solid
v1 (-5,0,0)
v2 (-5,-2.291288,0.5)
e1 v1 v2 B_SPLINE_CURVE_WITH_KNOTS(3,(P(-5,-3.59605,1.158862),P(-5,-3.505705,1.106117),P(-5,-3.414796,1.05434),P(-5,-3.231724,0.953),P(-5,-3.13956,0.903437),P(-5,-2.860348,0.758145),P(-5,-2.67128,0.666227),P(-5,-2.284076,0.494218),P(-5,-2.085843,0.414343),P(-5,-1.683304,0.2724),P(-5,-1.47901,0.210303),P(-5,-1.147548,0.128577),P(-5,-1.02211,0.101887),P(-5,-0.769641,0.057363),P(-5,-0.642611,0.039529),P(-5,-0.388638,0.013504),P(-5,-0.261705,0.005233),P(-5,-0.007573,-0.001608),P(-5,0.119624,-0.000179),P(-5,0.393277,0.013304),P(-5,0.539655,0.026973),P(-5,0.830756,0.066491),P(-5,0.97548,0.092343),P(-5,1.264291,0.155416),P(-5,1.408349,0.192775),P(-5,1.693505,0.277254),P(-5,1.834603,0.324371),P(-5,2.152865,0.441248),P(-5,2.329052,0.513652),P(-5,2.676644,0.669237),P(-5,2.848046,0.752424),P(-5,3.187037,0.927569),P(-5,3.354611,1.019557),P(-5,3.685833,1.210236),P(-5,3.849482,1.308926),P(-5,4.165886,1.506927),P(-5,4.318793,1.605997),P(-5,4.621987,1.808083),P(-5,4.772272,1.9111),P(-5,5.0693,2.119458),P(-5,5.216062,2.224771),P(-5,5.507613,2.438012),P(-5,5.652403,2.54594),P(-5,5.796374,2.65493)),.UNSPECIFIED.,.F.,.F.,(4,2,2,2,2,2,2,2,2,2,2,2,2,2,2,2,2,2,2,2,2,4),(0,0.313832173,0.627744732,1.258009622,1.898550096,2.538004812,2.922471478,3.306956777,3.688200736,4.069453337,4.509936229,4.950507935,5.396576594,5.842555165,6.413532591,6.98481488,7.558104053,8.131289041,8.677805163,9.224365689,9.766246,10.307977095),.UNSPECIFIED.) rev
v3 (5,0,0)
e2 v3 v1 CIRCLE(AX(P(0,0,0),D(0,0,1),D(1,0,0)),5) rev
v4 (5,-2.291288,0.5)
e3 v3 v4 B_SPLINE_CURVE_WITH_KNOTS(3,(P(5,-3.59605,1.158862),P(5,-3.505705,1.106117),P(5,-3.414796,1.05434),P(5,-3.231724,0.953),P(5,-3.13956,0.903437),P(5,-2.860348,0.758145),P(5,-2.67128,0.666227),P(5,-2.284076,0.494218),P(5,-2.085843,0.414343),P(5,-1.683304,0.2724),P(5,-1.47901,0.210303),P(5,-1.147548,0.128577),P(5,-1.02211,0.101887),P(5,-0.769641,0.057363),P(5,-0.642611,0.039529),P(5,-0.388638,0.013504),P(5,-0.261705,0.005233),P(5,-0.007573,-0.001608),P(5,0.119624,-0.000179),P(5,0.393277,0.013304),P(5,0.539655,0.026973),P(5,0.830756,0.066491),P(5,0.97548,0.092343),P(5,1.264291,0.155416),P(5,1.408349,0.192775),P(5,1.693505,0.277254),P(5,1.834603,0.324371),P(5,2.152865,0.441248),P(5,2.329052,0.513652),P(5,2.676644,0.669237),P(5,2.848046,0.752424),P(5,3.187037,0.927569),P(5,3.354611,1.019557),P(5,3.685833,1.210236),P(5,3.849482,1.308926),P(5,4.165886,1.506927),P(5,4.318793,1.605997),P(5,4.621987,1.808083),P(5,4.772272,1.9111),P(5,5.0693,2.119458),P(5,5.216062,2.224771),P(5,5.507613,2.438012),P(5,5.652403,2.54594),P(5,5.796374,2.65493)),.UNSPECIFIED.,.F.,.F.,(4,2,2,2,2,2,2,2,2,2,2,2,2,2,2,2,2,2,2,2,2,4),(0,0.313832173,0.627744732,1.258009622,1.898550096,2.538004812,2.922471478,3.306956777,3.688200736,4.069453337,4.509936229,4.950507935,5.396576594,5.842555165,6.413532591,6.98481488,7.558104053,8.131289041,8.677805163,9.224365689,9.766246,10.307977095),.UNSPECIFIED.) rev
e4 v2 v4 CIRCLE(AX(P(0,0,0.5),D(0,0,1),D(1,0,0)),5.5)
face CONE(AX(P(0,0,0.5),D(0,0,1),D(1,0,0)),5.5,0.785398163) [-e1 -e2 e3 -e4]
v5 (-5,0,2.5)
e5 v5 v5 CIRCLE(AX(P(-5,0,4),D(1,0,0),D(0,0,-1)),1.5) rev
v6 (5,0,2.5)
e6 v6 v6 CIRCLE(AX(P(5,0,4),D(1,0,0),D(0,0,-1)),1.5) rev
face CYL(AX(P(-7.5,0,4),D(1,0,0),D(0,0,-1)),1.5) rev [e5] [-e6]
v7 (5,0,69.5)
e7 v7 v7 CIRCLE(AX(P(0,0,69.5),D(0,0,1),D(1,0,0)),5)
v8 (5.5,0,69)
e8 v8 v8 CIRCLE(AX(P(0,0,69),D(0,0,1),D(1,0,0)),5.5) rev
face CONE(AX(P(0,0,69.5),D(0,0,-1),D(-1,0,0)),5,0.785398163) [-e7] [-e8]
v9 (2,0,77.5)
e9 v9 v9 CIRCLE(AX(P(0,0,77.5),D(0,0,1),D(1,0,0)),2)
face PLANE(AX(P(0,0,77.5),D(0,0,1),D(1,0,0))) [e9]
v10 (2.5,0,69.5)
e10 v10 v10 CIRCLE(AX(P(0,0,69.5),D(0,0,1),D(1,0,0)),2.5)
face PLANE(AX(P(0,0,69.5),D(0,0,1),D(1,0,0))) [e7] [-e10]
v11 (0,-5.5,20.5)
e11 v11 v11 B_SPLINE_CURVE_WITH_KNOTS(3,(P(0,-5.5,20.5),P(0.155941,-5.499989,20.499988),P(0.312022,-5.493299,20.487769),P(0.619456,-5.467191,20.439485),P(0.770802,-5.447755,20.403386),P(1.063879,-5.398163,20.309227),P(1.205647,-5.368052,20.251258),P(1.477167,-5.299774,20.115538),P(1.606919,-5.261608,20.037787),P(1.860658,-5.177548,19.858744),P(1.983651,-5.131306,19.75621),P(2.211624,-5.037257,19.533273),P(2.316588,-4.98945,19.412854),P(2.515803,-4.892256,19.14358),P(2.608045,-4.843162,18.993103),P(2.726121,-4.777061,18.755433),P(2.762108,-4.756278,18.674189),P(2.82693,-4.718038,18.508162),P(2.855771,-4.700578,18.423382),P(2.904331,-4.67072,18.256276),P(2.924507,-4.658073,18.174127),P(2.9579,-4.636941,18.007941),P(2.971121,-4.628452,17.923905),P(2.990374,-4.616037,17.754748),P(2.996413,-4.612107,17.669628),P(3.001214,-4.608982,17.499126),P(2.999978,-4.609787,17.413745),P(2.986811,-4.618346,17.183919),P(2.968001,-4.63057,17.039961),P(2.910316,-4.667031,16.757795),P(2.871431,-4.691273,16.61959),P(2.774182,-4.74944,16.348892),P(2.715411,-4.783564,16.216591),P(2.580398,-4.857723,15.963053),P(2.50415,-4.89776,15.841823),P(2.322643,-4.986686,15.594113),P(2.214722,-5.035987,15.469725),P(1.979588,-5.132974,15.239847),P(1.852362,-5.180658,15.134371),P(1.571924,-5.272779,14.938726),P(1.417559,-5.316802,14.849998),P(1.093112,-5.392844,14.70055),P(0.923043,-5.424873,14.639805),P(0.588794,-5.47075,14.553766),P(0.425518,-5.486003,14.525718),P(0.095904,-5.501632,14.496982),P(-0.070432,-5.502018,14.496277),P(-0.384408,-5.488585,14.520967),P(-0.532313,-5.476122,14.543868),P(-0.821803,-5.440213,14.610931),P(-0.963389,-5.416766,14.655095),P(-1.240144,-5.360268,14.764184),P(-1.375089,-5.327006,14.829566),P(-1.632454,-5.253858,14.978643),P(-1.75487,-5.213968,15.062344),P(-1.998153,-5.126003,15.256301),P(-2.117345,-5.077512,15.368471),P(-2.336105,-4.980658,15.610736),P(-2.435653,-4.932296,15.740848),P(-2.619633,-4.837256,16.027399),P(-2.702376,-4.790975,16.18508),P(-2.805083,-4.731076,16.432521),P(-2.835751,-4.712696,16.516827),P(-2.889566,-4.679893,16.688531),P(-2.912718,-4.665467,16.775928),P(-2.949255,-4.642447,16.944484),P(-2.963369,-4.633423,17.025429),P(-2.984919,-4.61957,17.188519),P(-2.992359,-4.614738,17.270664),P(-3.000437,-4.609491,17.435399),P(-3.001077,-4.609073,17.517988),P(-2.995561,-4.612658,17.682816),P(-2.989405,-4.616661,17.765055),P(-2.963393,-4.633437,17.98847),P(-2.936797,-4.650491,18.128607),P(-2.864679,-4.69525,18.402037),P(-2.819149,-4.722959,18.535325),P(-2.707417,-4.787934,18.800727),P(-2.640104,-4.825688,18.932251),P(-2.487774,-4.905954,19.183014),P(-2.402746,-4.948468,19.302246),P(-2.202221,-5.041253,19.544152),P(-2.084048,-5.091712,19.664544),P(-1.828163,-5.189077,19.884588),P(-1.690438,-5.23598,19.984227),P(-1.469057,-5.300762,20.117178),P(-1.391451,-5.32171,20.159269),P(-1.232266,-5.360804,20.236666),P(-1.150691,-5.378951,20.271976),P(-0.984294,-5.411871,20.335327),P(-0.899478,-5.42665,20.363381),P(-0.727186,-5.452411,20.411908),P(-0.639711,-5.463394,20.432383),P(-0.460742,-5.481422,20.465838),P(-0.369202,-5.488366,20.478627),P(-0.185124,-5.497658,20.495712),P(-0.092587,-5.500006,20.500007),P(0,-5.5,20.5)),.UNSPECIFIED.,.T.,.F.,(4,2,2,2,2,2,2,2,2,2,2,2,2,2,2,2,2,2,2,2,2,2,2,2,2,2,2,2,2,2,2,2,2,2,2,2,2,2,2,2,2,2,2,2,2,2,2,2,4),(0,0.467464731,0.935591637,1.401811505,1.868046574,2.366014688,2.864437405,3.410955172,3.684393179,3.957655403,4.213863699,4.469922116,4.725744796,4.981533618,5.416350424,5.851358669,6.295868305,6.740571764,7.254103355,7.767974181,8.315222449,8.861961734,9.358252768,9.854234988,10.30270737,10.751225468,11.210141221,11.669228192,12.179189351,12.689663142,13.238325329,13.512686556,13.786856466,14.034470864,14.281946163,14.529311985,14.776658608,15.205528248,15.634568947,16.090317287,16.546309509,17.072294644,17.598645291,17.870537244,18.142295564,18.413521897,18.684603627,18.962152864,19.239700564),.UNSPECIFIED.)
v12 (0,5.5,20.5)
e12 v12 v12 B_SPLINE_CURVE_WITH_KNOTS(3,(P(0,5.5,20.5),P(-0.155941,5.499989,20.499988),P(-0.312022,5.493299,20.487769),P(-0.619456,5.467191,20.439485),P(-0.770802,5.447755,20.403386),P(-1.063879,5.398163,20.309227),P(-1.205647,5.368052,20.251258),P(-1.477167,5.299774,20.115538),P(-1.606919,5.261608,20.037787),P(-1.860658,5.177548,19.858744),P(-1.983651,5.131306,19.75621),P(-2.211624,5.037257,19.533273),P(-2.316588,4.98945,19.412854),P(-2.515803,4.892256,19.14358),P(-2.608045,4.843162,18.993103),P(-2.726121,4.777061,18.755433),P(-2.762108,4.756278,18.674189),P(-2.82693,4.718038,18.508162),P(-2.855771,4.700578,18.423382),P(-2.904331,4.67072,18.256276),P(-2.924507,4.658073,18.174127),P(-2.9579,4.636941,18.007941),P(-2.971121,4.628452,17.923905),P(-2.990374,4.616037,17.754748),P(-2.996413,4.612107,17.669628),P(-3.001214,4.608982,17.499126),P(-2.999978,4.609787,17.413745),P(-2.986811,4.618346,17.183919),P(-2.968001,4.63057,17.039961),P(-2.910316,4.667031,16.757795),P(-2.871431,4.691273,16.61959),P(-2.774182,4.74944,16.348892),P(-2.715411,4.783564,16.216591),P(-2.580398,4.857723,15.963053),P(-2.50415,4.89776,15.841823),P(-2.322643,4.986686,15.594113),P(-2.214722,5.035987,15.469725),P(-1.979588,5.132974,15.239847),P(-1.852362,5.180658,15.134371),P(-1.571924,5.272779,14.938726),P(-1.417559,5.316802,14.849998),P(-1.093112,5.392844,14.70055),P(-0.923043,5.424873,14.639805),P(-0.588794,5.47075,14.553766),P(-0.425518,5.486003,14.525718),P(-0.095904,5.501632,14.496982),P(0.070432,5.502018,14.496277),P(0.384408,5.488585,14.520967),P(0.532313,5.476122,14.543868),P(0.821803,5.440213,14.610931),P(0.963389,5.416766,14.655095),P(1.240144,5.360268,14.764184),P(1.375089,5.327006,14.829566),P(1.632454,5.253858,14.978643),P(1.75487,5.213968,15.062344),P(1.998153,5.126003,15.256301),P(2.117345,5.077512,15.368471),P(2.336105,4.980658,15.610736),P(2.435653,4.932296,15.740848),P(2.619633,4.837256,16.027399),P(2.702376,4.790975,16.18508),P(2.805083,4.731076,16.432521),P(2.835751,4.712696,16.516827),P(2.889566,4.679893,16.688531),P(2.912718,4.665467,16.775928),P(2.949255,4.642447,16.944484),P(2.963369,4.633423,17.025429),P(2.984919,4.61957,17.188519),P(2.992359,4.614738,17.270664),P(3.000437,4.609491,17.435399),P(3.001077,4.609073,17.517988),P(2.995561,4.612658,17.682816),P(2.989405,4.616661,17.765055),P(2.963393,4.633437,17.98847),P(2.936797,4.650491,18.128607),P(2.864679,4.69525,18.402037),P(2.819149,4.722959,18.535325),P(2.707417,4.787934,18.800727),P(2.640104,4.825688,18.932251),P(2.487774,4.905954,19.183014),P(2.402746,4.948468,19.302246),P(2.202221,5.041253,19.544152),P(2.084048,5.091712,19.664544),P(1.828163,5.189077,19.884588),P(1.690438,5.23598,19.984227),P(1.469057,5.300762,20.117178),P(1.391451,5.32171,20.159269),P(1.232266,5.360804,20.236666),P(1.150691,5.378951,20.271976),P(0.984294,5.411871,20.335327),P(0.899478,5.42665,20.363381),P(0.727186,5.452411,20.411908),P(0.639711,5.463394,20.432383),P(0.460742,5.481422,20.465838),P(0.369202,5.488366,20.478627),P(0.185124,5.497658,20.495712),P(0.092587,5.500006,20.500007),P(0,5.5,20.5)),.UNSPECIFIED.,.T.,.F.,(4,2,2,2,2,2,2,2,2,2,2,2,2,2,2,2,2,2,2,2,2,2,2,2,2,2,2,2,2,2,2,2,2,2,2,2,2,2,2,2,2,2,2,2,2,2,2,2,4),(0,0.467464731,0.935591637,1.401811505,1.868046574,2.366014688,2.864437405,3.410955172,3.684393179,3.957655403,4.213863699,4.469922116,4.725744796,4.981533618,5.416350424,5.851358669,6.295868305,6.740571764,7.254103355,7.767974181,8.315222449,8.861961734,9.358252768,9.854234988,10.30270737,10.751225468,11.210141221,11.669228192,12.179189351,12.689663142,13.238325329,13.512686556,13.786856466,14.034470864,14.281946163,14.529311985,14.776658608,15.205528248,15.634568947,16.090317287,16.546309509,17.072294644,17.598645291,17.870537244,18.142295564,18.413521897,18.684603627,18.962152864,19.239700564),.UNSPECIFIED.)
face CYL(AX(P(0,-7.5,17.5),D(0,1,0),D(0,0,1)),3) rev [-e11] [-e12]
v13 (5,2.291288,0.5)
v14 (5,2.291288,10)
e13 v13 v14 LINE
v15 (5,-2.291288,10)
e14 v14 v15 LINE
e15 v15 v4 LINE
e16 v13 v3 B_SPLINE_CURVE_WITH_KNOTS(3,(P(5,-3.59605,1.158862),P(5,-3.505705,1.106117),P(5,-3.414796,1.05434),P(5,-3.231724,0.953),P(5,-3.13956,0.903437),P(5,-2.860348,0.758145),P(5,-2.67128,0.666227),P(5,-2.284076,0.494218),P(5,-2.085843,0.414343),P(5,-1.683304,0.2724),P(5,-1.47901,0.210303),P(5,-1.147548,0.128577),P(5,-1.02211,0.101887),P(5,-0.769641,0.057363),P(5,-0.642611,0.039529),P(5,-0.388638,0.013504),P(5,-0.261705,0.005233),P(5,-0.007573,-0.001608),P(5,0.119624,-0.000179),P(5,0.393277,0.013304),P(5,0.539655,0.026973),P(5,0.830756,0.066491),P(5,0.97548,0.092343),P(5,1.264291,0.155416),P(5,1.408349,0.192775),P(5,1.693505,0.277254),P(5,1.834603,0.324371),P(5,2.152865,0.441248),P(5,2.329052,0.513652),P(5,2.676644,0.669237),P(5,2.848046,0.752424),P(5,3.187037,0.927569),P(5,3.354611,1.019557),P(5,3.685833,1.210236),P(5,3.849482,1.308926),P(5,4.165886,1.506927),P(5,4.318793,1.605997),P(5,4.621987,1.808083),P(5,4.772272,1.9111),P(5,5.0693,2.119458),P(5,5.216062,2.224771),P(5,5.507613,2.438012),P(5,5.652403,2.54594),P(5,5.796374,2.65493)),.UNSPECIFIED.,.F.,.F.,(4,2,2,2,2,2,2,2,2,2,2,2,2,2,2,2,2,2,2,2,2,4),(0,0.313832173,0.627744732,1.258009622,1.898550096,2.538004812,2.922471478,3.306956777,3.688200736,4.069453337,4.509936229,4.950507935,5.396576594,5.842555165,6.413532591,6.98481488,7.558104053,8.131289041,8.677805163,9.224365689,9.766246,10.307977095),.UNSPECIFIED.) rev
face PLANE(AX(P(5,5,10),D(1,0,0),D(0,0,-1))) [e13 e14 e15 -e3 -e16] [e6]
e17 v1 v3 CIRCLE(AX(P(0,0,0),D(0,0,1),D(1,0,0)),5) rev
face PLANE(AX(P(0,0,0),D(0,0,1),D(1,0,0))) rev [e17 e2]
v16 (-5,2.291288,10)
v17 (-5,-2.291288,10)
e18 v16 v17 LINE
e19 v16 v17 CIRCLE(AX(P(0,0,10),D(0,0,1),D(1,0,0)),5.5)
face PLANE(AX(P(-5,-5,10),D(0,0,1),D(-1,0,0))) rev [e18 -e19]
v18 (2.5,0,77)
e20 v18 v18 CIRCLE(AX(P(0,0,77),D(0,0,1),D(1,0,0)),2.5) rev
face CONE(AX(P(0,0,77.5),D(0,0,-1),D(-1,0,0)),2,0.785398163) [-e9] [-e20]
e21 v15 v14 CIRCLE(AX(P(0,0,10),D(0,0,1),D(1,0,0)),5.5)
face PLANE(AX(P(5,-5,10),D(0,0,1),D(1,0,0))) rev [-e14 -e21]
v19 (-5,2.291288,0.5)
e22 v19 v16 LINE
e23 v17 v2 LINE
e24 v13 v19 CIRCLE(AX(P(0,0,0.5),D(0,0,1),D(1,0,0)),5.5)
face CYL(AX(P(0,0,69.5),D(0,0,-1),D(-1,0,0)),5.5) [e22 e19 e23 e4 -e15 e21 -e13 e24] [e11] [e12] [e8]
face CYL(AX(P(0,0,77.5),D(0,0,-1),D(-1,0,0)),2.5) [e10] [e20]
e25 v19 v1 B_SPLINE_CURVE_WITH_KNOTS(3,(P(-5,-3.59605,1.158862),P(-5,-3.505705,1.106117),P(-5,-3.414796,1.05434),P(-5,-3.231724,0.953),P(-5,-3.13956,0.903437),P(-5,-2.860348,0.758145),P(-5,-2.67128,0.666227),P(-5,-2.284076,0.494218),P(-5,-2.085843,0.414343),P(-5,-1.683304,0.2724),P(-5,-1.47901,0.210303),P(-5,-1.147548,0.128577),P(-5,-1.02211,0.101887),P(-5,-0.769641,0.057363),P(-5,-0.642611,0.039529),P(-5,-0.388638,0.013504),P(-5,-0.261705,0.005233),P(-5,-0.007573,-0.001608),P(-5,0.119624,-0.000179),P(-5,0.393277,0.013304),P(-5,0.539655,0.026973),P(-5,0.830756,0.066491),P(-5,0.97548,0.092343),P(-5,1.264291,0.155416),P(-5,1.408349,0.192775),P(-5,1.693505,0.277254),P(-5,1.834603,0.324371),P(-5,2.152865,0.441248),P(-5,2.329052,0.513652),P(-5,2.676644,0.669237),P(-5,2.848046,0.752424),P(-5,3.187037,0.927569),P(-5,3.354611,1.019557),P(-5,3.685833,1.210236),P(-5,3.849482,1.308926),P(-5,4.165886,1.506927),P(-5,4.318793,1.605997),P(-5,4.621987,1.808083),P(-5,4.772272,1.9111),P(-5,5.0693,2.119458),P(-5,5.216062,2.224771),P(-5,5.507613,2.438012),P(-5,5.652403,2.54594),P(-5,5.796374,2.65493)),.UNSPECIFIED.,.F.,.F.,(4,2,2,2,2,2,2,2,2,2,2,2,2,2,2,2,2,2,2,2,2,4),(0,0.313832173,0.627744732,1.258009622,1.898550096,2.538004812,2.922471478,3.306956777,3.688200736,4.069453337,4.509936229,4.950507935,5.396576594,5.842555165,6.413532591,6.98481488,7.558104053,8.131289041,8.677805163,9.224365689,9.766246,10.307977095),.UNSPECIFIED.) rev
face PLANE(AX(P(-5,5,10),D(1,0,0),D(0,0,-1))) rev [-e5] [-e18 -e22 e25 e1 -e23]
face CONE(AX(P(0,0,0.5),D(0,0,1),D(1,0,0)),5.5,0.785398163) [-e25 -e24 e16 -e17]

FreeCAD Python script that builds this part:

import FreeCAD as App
import Part
import Sketcher

V = App.Vector


def edges_at(feature, points):
    """Names of the edges that pass closest to the given points."""
    edges = feature.Shape.Edges
    near = lambda p: min(range(len(edges)), key=lambda i: edges[i].distToShape(Part.Vertex(*p))[0])
    return sorted({f"Edge{near(p) + 1}" for p in points})


def add_polygon(sketch, points):
    """Adds a closed chain of lines whose ends are joined by coincident constraints."""
    first, n = sketch.GeometryCount, len(points)
    for a, b in zip(points, points[1:] + points[:1]):
        sketch.addGeometry(Part.LineSegment(App.Vector(*a, 0), App.Vector(*b, 0)), False)
    for i in range(n):
        sketch.addConstraint(Sketcher.Constraint("Coincident", first + i, 2, first + (i + 1) % n, 1))

doc = App.newDocument("Part")
params = doc.addObject("Spreadsheet::Sheet", "Params")
for row, (alias, value) in enumerate([
    ("sketch1_diameter", "11 mm"),
    ("pad1_length", "69.5 mm"),
    ("chamfer_size", "0.5 mm"),
    ("sketch2_diameter", "5 mm"),
    ("pad2_length", "8 mm"),
    ("chamfer2_size", "0.5 mm"),
    ("sketch3_diameter", "3 mm"),
    ("pocket1_length", "15 mm"),
    ("sketch4_diameter", "6 mm"),
    ("pocket2_length", "15 mm"),
    ("sketch5_width", "2 mm"),
    ("sketch5_height", "10 mm"),
    ("pocket3_length", "10 mm"),
], start=1):
    params.set(f"A{row}", alias)
    params.set(f"B{row}", "=" + value)
    params.setAlias(f"B{row}", alias)

body = doc.addObject("PartDesign::Body", "Body")

sketch1 = body.newObject("Sketcher::SketchObject", "Sketch")
sketch1.AttachmentSupport = (doc.getObject("XY_Plane"), [""])
sketch1.MapMode = "FlatFace"
sketch1.addGeometry(Part.Circle(V(0, 0, 0), V(0, 0, 1), 6), False)
sketch1.addConstraint([
    Sketcher.Constraint("Coincident", 0, 3, -1, 1),
    Sketcher.Constraint("Diameter", 0, 11.0),
])
sketch1.setExpression("Constraints[1]", "Params.sketch1_diameter")
pad1 = body.newObject("PartDesign::Pad", "Pad")
pad1.Profile = sketch1
pad1.setExpression("Length", "Params.pad1_length")
doc.recompute()

chamfer = body.newObject("PartDesign::Chamfer", "Chamfer")
chamfer.Base = (pad1, edges_at(pad1, [(-5.5, 0, 0), (-5.5, 0, 69.5)]))
chamfer.setExpression("Size", "Params.chamfer_size")

sketch2 = body.newObject("Sketcher::SketchObject", "Sketch001")
sketch2.AttachmentSupport = (doc.getObject("XY_Plane"), [""])
sketch2.MapMode = "FlatFace"
sketch2.AttachmentOffset = App.Placement(V(0, 0, 69.5), App.Rotation())
sketch2.addGeometry(Part.Circle(V(0, 0, 0), V(0, 0, 1), 2.5), False)
sketch2.addConstraint([
    Sketcher.Constraint("Coincident", 0, 3, -1, 1),
    Sketcher.Constraint("Diameter", 0, 5.0),
])
sketch2.setExpression("Constraints[1]", "Params.sketch2_diameter")
pad2 = body.newObject("PartDesign::Pad", "Pad001")
pad2.Profile = sketch2
pad2.setExpression("Length", "Params.pad2_length")
doc.recompute()

chamfer2 = body.newObject("PartDesign::Chamfer", "Chamfer001")
chamfer2.Base = (pad2, edges_at(pad2, [(-2.5, 0, 77.5)]))
chamfer2.setExpression("Size", "Params.chamfer2_size")

sketch3 = body.newObject("Sketcher::SketchObject", "Sketch002")
sketch3.AttachmentSupport = (doc.getObject("YZ_Plane"), [""])
sketch3.MapMode = "FlatFace"
sketch3.addGeometry(Part.Circle(V(0, 4, 0), V(0, 0, 1), 1.5), False)
sketch3.addConstraint([
    Sketcher.Constraint("PointOnObject", 0, 3, -2),
    Sketcher.Constraint("Diameter", 0, 3.0),
    Sketcher.Constraint("DistanceY", -1, 1, 0, 3, 4.0),
])
sketch3.setExpression("Constraints[1]", "Params.sketch3_diameter")
pocket1 = body.newObject("PartDesign::Pocket", "Pocket")
pocket1.Profile = sketch3
pocket1.setExpression("Length", "Params.pocket1_length")
pocket1.Midplane = True

sketch4 = body.newObject("Sketcher::SketchObject", "Sketch003")
sketch4.AttachmentSupport = (doc.getObject("XZ_Plane"), [""])
sketch4.MapMode = "FlatFace"
sketch4.addGeometry(Part.Circle(V(0, 17.5, 0), V(0, 0, 1), 3), False)
sketch4.addConstraint([
    Sketcher.Constraint("PointOnObject", 0, 3, -2),
    Sketcher.Constraint("Diameter", 0, 6.0),
    Sketcher.Constraint("DistanceY", -1, 1, 0, 3, 17.5),
])
sketch4.setExpression("Constraints[1]", "Params.sketch4_diameter")
pocket2 = body.newObject("PartDesign::Pocket", "Pocket001")
pocket2.Profile = sketch4
pocket2.setExpression("Length", "Params.pocket2_length")
pocket2.Midplane = True

sketch5 = body.newObject("Sketcher::SketchObject", "Sketch004")
sketch5.AttachmentSupport = (doc.getObject("XY_Plane"), [""])
sketch5.MapMode = "FlatFace"
add_polygon(sketch5, [(5, 5), (5, -5), (7, -5), (7, 5)])
sketch5.addConstraint([
    Sketcher.Constraint("Vertical", 0),
    Sketcher.Constraint("Horizontal", 1),
    Sketcher.Constraint("Vertical", 2),
    Sketcher.Constraint("Horizontal", 3),
    Sketcher.Constraint("DistanceX", 1, 1, 1, 2, 2.0),
    Sketcher.Constraint("DistanceY", 0, 2, 0, 1, 10.0),
    Sketcher.Constraint("DistanceX", -1, 1, 0, 2, 5.0),
    Sketcher.Constraint("DistanceY", 0, 2, -1, 1, 5.0),
])
sketch5.setExpression("Constraints[8]", "Params.sketch5_width")
sketch5.setExpression("Constraints[9]", "Params.sketch5_height")
pocket3 = body.newObject("PartDesign::Pocket", "Pocket002")
pocket3.Profile = sketch5
pocket3.setExpression("Length", "Params.pocket3_length")
pocket3.Reversed = True
doc.recompute()

mirrored = body.newObject("PartDesign::Mirrored", "Mirrored")
mirrored.Originals = [pocket3]
mirrored.MirrorPlane = (doc.getObject("YZ_Plane"), [""])
body.Tip = mirrored

doc.recompute()
